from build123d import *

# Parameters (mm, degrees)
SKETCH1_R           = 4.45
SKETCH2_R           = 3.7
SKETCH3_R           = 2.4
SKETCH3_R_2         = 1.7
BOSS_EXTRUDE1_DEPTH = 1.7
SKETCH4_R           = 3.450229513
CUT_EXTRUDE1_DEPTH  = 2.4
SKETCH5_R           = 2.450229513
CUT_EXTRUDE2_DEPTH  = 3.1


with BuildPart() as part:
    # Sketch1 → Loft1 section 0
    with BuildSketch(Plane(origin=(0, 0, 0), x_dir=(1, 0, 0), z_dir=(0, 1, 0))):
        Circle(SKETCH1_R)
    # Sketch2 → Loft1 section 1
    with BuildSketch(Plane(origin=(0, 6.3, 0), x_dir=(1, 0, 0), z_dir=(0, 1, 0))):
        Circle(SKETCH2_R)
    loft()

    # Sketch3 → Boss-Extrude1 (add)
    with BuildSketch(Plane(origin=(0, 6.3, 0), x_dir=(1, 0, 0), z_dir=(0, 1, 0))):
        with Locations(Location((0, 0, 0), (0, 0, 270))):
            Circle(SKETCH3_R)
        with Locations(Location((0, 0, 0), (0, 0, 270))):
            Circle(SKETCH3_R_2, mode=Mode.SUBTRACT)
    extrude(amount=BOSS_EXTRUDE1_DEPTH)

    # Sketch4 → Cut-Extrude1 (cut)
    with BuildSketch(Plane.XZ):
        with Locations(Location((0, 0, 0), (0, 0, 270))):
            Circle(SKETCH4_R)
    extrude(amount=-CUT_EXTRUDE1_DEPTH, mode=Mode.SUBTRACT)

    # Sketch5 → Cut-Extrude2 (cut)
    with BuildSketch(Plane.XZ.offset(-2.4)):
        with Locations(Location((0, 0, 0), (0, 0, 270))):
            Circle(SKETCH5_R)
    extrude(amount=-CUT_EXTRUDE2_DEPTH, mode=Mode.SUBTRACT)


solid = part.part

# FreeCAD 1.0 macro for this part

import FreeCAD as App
import Part
import Sketcher

doc = App.newDocument("Part")
params = doc.addObject("Spreadsheet::Sheet", "Params")
for row, (alias, value) in enumerate([
    ("sketch1_diameter", "8.9 mm"),
    ("sketch2_diameter", "7.4 mm"),
    ("sketch3_diameter", "4.8 mm"),
    ("sketch3_diameter2", "3.4 mm"),
    ("pad1_length", "1.7 mm"),
    ("pocket1_length", "2.4 mm"),
    ("pocket2_length", "3.1 mm"),
], start=1):
    params.set(f"A{row}", alias)
    params.set(f"B{row}", "=" + value)
    params.setAlias(f"B{row}", alias)

body = doc.addObject("PartDesign::Body", "Body")

sketch1 = body.newObject("Sketcher::SketchObject", "Sketch")
sketch1.AttachmentSupport = (doc.getObject("XZ_Plane"), [""])
sketch1.MapMode = "FlatFace"
sketch1.addGeometry(Part.Circle(App.Vector(0, 0, 0), App.Vector(0, 0, 1), 4.5), False)
sketch1.addConstraint([
    Sketcher.Constraint("Coincident", 0, 3, -1, 1),
    Sketcher.Constraint("Diameter", 0, 8.9),
])
sketch1.setExpression("Constraints[1]", "Params.sketch1_diameter")

sketch2 = body.newObject("Sketcher::SketchObject", "Sketch001")
sketch2.AttachmentSupport = (doc.getObject("XZ_Plane"), [""])
sketch2.MapMode = "FlatFace"
sketch2.AttachmentOffset = App.Placement(App.Vector(0, 0, -6.3), App.Rotation())
sketch2.addGeometry(Part.Circle(App.Vector(0, 0, 0), App.Vector(0, 0, 1), 3.7), False)
sketch2.addConstraint([
    Sketcher.Constraint("Coincident", 0, 3, -1, 1),
    Sketcher.Constraint("Diameter", 0, 7.4),
])
sketch2.setExpression("Constraints[1]", "Params.sketch2_diameter")

additiveloft = body.newObject("PartDesign::AdditiveLoft", "AdditiveLoft")
additiveloft.Profile = sketch1
additiveloft.Sections = [sketch2]

sketch3 = body.newObject("Sketcher::SketchObject", "Sketch002")
sketch3.AttachmentSupport = (doc.getObject("XZ_Plane"), [""])
sketch3.MapMode = "FlatFace"
sketch3.AttachmentOffset = App.Placement(App.Vector(0, 0, -6.3), App.Rotation())
sketch3.addGeometry([
    Part.Circle(App.Vector(0, 0, 0), App.Vector(0, 0, 1), 2.4),
    Part.Circle(App.Vector(0, 0, 0), App.Vector(0, 0, 1), 1.7),
], False)
sketch3.addConstraint([
    Sketcher.Constraint("Coincident", 0, 3, -1, 1),
    Sketcher.Constraint("Coincident", 1, 3, -1, 1),
    Sketcher.Constraint("Diameter", 0, 4.8),
    Sketcher.Constraint("Diameter", 1, 3.4),
])
sketch3.setExpression("Constraints[2]", "Params.sketch3_diameter")
sketch3.setExpression("Constraints[3]", "Params.sketch3_diameter2")
pad1 = body.newObject("PartDesign::Pad", "Pad")
pad1.Profile = sketch3
pad1.setExpression("Length", "Params.pad1_length")
pad1.Reversed = True

sketch4 = body.newObject("Sketcher::SketchObject", "Sketch003")
sketch4.AttachmentSupport = (doc.getObject("XZ_Plane"), [""])
sketch4.MapMode = "FlatFace"
sketch4.addGeometry(Part.Circle(App.Vector(0, 0, 0), App.Vector(0, 0, 1), 3.5), False)
sketch4.addConstraint([
    Sketcher.Constraint("Coincident", 0, 3, -1, 1),
    Sketcher.Constraint("Diameter", 0, 6.900459),
])
pocket1 = body.newObject("PartDesign::Pocket", "Pocket")
pocket1.Profile = sketch4
pocket1.setExpression("Length", "Params.pocket1_length")

sketch5 = body.newObject("Sketcher::SketchObject", "Sketch004")
sketch5.AttachmentSupport = (doc.getObject("XZ_Plane"), [""])
sketch5.MapMode = "FlatFace"
sketch5.AttachmentOffset = App.Placement(App.Vector(0, 0, -2.4), App.Rotation())
sketch5.addGeometry(Part.Circle(App.Vector(0, 0, 0), App.Vector(0, 0, 1), 2.5), False)
sketch5.addConstraint([
    Sketcher.Constraint("Coincident", 0, 3, -1, 1),
    Sketcher.Constraint("Diameter", 0, 4.900459),
])
pocket2 = body.newObject("PartDesign::Pocket", "Pocket001")
pocket2.Profile = sketch5
pocket2.setExpression("Length", "Params.pocket2_length")

doc.recompute()
